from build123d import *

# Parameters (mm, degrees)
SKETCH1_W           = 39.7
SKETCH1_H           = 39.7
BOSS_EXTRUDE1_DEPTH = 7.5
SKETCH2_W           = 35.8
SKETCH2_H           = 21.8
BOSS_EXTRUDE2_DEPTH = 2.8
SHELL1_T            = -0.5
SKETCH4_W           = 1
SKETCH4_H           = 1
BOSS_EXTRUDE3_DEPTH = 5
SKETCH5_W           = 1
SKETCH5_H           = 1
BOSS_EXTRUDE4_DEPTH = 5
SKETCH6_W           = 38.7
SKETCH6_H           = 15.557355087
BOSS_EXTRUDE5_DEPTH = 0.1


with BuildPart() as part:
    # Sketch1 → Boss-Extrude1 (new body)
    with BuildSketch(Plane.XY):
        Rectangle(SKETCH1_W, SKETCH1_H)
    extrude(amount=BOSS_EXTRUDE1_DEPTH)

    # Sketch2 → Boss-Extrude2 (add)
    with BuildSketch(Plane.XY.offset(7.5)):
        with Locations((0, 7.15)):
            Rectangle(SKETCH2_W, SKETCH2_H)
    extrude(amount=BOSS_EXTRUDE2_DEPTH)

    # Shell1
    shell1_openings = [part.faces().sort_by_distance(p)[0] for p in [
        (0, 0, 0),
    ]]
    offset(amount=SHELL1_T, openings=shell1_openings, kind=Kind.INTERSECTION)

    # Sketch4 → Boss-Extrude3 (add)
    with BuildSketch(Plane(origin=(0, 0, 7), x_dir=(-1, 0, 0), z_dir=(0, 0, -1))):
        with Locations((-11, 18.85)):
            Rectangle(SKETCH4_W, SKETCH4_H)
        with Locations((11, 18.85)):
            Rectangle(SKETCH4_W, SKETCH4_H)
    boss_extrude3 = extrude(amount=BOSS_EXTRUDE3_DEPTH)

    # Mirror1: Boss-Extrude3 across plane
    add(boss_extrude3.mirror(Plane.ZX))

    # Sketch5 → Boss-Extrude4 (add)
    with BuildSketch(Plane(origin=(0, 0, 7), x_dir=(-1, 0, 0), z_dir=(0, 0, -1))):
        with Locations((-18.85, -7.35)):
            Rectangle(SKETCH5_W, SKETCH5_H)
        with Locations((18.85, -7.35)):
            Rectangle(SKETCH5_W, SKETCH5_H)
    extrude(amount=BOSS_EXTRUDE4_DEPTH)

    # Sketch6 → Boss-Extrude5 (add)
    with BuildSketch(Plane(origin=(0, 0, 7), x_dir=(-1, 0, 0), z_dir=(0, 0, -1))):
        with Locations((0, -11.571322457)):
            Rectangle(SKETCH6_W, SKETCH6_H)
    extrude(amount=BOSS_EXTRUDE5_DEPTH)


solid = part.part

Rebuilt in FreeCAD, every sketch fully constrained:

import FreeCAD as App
import Part
import Sketcher


def faces_at(feature, points):
    """Names of the faces that lie closest to the given points."""
    faces = feature.Shape.Faces
    near = lambda p: min(range(len(faces)), key=lambda i: faces[i].distToShape(Part.Vertex(*p))[0])
    return sorted({f"Face{near(p) + 1}" for p in points})

doc = App.newDocument("Part")
params = doc.addObject("Spreadsheet::Sheet", "Params")
for row, (alias, value) in enumerate([
    ("sketch1_width", "39.7 mm"),
    ("pad1_length", "7.5 mm"),
    ("sketch2_width", "35.8 mm"),
    ("sketch2_height", "21.8 mm"),
    ("pad2_length", "2.8 mm"),
    ("thickness_wall", "0.5 mm"),
    ("sketch3_width", "1 mm"),
    ("pad3_length", "5 mm"),
    ("sketch4_width", "1 mm"),
    ("pad4_length", "5 mm"),
    ("sketch5_width", "38.7 mm"),
    ("pad5_length", "0.1 mm"),
], start=1):
    params.set(f"A{row}", alias)
    params.set(f"B{row}", "=" + value)
    params.setAlias(f"B{row}", alias)

body = doc.addObject("PartDesign::Body", "Body")

# Sketch on XY plane
sketch1 = body.newObject("Sketcher::SketchObject", "Sketch")
sketch1.AttachmentSupport = (doc.getObject("XY_Plane"), [""])
sketch1.MapMode = "FlatFace"
sketch1.addGeometry([
    Part.LineSegment(App.Vector(-20, 20, 0), App.Vector(-20, -20, 0)),
    Part.LineSegment(App.Vector(-20, -20, 0), App.Vector(20, -20, 0)),
    Part.LineSegment(App.Vector(20, -20, 0), App.Vector(20, 20, 0)),
    Part.LineSegment(App.Vector(20, 20, 0), App.Vector(-20, 20, 0)),
], False)
sketch1.addConstraint([
    Sketcher.Constraint("Coincident", 0, 2, 1, 1),
    Sketcher.Constraint("Coincident", 1, 2, 2, 1),
    Sketcher.Constraint("Coincident", 2, 2, 3, 1),
    Sketcher.Constraint("Coincident", 3, 2, 0, 1),
    Sketcher.Constraint("Vertical", 0),
    Sketcher.Constraint("Horizontal", 1),
    Sketcher.Constraint("Vertical", 2),
    Sketcher.Constraint("Horizontal", 3),
    Sketcher.Constraint("Symmetric", 0, 2, 2, 2, -1, 1),
    Sketcher.Constraint("Equal", 3, 0),
    Sketcher.Constraint("DistanceX", 1, 1, 1, 2, 39.7),
])
sketch1.setExpression("Constraints[10]", "Params.sketch1_width")
pad1 = body.newObject("PartDesign::Pad", "Pad")
pad1.Profile = sketch1
pad1.setExpression("Length", "Params.pad1_length")

# Sketch on XY plane
sketch2 = body.newObject("Sketcher::SketchObject", "Sketch001")
sketch2.AttachmentSupport = (doc.getObject("XY_Plane"), [""])
sketch2.MapMode = "FlatFace"
sketch2.AttachmentOffset = App.Placement(App.Vector(0, 0, 7.5), App.Rotation())
sketch2.addGeometry([
    Part.LineSegment(App.Vector(-18, 18, 0), App.Vector(-18, -4, 0)),
    Part.LineSegment(App.Vector(-18, -4, 0), App.Vector(18, -4, 0)),
    Part.LineSegment(App.Vector(18, -4, 0), App.Vector(18, 18, 0)),
    Part.LineSegment(App.Vector(18, 18, 0), App.Vector(-18, 18, 0)),
], False)
sketch2.addConstraint([
    Sketcher.Constraint("Coincident", 0, 2, 1, 1),
    Sketcher.Constraint("Coincident", 1, 2, 2, 1),
    Sketcher.Constraint("Coincident", 2, 2, 3, 1),
    Sketcher.Constraint("Coincident", 3, 2, 0, 1),
    Sketcher.Constraint("Vertical", 0),
    Sketcher.Constraint("Horizontal", 1),
    Sketcher.Constraint("Vertical", 2),
    Sketcher.Constraint("Horizontal", 3),
    Sketcher.Constraint("DistanceX", 1, 1, 1, 2, 35.8),
    Sketcher.Constraint("DistanceY", 0, 2, 0, 1, 21.8),
    Sketcher.Constraint("DistanceX", 0, 2, -1, 1, 17.9),
    Sketcher.Constraint("DistanceY", 0, 2, -1, 1, 3.75),
])
sketch2.setExpression("Constraints[8]", "Params.sketch2_width")
sketch2.setExpression("Constraints[9]", "Params.sketch2_height")
pad2 = body.newObject("PartDesign::Pad", "Pad001")
pad2.Profile = sketch2
pad2.setExpression("Length", "Params.pad2_length")
doc.recompute()

thickness = body.newObject("PartDesign::Thickness", "Thickness")
thickness.Base = (pad2, faces_at(pad2, [(0, 0, 0)]))
thickness.setExpression("Value", "Params.thickness_wall")
thickness.Reversed = True
thickness.Join = "Intersection"

# Sketch on XY plane
sketch3 = body.newObject("Sketcher::SketchObject", "Sketch002")
sketch3.AttachmentSupport = (doc.getObject("XY_Plane"), [""])
sketch3.MapMode = "FlatFace"
sketch3.AttachmentOffset = App.Placement(App.Vector(0, 0, 7), App.Rotation())
sketch3.addGeometry([
    Part.LineSegment(App.Vector(11.5, 19.4, 0), App.Vector(11.5, 18.4, 0)),  # 0
    Part.LineSegment(App.Vector(11.5, 18.4, 0), App.Vector(10.5, 18.4, 0)),  # 1
    Part.LineSegment(App.Vector(10.5, 18.4, 0), App.Vector(10.5, 19.4, 0)),  # 2
    Part.LineSegment(App.Vector(10.5, 19.4, 0), App.Vector(11.5, 19.4, 0)),  # 3
    Part.LineSegment(App.Vector(-10.5, 19.4, 0), App.Vector(-10.5, 18.4, 0)),  # 4
    Part.LineSegment(App.Vector(-10.5, 18.4, 0), App.Vector(-11.5, 18.4, 0)),  # 5
    Part.LineSegment(App.Vector(-11.5, 18.4, 0), App.Vector(-11.5, 19.4, 0)),  # 6
    Part.LineSegment(App.Vector(-11.5, 19.4, 0), App.Vector(-10.5, 19.4, 0)),  # 7
], False)
sketch3.addConstraint([
    Sketcher.Constraint("Coincident", 0, 2, 1, 1),
    Sketcher.Constraint("Coincident", 1, 2, 2, 1),
    Sketcher.Constraint("Coincident", 2, 2, 3, 1),
    Sketcher.Constraint("Coincident", 3, 2, 0, 1),
    Sketcher.Constraint("Coincident", 4, 2, 5, 1),
    Sketcher.Constraint("Coincident", 5, 2, 6, 1),
    Sketcher.Constraint("Coincident", 6, 2, 7, 1),
    Sketcher.Constraint("Coincident", 7, 2, 4, 1),
    Sketcher.Constraint("Vertical", 0),
    Sketcher.Constraint("Horizontal", 1),
    Sketcher.Constraint("Vertical", 2),
    Sketcher.Constraint("Horizontal", 3),
    Sketcher.Constraint("Vertical", 4),
    Sketcher.Constraint("Horizontal", 5),
    Sketcher.Constraint("Vertical", 6),
    Sketcher.Constraint("Horizontal", 7),
    Sketcher.Constraint("Symmetric", 1, 2, 4, 2, -2),
    Sketcher.Constraint("Symmetric", 3, 2, 6, 2, -2),
    Sketcher.Constraint("Equal", 7, 0),
    Sketcher.Constraint("DistanceX", 1, 2, 1, 1, 1.0),
    Sketcher.Constraint("DistanceX", 4, 2, 1, 2, 21.0),
    Sketcher.Constraint("DistanceY", -1, 1, 0, 2, 18.35),
])
sketch3.setExpression("Constraints[19]", "Params.sketch3_width")
pad3 = body.newObject("PartDesign::Pad", "Pad002")
pad3.Profile = sketch3
pad3.setExpression("Length", "Params.pad3_length")
pad3.Reversed = True
doc.recompute()

mirrored = body.newObject("PartDesign::Mirrored", "Mirrored")
mirrored.Originals = [pad3]
mirrored.MirrorPlane = (doc.getObject("XZ_Plane"), [""])
body.Tip = mirrored

# Sketch on XY plane
sketch4 = body.newObject("Sketcher::SketchObject", "Sketch003")
sketch4.AttachmentSupport = (doc.getObject("XY_Plane"), [""])
sketch4.MapMode = "FlatFace"
sketch4.AttachmentOffset = App.Placement(App.Vector(0, 0, 7), App.Rotation())
sketch4.addGeometry([
    Part.LineSegment(App.Vector(19.4, -6.8, 0), App.Vector(19.4, -7.8, 0)),  # 0
    Part.LineSegment(App.Vector(19.4, -7.8, 0), App.Vector(18.4, -7.8, 0)),  # 1
    Part.LineSegment(App.Vector(18.4, -7.8, 0), App.Vector(18.4, -6.8, 0)),  # 2
    Part.LineSegment(App.Vector(18.4, -6.8, 0), App.Vector(19.4, -6.8, 0)),  # 3
    Part.LineSegment(App.Vector(-18.4, -6.8, 0), App.Vector(-18.4, -7.8, 0)),  # 4
    Part.LineSegment(App.Vector(-18.4, -7.8, 0), App.Vector(-19.4, -7.8, 0)),  # 5
    Part.LineSegment(App.Vector(-19.4, -7.8, 0), App.Vector(-19.4, -6.8, 0)),  # 6
    Part.LineSegment(App.Vector(-19.4, -6.8, 0), App.Vector(-18.4, -6.8, 0)),  # 7
], False)
sketch4.addConstraint([
    Sketcher.Constraint("Coincident", 0, 2, 1, 1),
    Sketcher.Constraint("Coincident", 1, 2, 2, 1),
    Sketcher.Constraint("Coincident", 2, 2, 3, 1),
    Sketcher.Constraint("Coincident", 3, 2, 0, 1),
    Sketcher.Constraint("Coincident", 4, 2, 5, 1),
    Sketcher.Constraint("Coincident", 5, 2, 6, 1),
    Sketcher.Constraint("Coincident", 6, 2, 7, 1),
    Sketcher.Constraint("Coincident", 7, 2, 4, 1),
    Sketcher.Constraint("Vertical", 0),
    Sketcher.Constraint("Horizontal", 1),
    Sketcher.Constraint("Vertical", 2),
    Sketcher.Constraint("Horizontal", 3),
    Sketcher.Constraint("Vertical", 4),
    Sketcher.Constraint("Horizontal", 5),
    Sketcher.Constraint("Vertical", 6),
    Sketcher.Constraint("Horizontal", 7),
    Sketcher.Constraint("Symmetric", 1, 2, 4, 2, -2),
    Sketcher.Constraint("Symmetric", 3, 2, 6, 2, -2),
    Sketcher.Constraint("Equal", 7, 0),
    Sketcher.Constraint("DistanceX", 1, 2, 1, 1, 1.0),
    Sketcher.Constraint("DistanceX", 4, 2, 1, 2, 36.7),
    Sketcher.Constraint("DistanceY", 0, 2, -1, 1, 7.85),
])
sketch4.setExpression("Constraints[19]", "Params.sketch4_width")
pad4 = body.newObject("PartDesign::Pad", "Pad003")
pad4.Profile = sketch4
pad4.setExpression("Length", "Params.pad4_length")
pad4.Reversed = True

# Sketch on XY plane
sketch5 = body.newObject("Sketcher::SketchObject", "Sketch004")
sketch5.AttachmentSupport = (doc.getObject("XY_Plane"), [""])
sketch5.MapMode = "FlatFace"
sketch5.AttachmentOffset = App.Placement(App.Vector(0, 0, 7), App.Rotation())
sketch5.addGeometry([
    Part.LineSegment(App.Vector(19, -4, 0), App.Vector(19, -19, 0)),
    Part.LineSegment(App.Vector(19, -19, 0), App.Vector(-19, -19, 0)),
    Part.LineSegment(App.Vector(-19, -19, 0), App.Vector(-19, -4, 0)),
    Part.LineSegment(App.Vector(-19, -4, 0), App.Vector(19, -4, 0)),
], False)
sketch5.addConstraint([
    Sketcher.Constraint("Coincident", 0, 2, 1, 1),
    Sketcher.Constraint("Coincident", 1, 2, 2, 1),
    Sketcher.Constraint("Coincident", 2, 2, 3, 1),
    Sketcher.Constraint("Coincident", 3, 2, 0, 1),
    Sketcher.Constraint("Vertical", 0),
    Sketcher.Constraint("Horizontal", 1),
    Sketcher.Constraint("Vertical", 2),
    Sketcher.Constraint("Horizontal", 3),
    Sketcher.Constraint("DistanceX", 1, 2, 1, 1, 38.7),
    Sketcher.Constraint("DistanceX", -1, 1, 0, 2, 19.35),
    Sketcher.Constraint("DistanceY", 0, 2, -1, 1, 19.35),
    Sketcher.Constraint("DistanceY", 0, 2, 0, 1, 15.557355),
])
sketch5.setExpression("Constraints[8]", "Params.sketch5_width")
pad5 = body.newObject("PartDesign::Pad", "Pad004")
pad5.Profile = sketch5
pad5.setExpression("Length", "Params.pad5_length")
pad5.Reversed = True

doc.recompute()
